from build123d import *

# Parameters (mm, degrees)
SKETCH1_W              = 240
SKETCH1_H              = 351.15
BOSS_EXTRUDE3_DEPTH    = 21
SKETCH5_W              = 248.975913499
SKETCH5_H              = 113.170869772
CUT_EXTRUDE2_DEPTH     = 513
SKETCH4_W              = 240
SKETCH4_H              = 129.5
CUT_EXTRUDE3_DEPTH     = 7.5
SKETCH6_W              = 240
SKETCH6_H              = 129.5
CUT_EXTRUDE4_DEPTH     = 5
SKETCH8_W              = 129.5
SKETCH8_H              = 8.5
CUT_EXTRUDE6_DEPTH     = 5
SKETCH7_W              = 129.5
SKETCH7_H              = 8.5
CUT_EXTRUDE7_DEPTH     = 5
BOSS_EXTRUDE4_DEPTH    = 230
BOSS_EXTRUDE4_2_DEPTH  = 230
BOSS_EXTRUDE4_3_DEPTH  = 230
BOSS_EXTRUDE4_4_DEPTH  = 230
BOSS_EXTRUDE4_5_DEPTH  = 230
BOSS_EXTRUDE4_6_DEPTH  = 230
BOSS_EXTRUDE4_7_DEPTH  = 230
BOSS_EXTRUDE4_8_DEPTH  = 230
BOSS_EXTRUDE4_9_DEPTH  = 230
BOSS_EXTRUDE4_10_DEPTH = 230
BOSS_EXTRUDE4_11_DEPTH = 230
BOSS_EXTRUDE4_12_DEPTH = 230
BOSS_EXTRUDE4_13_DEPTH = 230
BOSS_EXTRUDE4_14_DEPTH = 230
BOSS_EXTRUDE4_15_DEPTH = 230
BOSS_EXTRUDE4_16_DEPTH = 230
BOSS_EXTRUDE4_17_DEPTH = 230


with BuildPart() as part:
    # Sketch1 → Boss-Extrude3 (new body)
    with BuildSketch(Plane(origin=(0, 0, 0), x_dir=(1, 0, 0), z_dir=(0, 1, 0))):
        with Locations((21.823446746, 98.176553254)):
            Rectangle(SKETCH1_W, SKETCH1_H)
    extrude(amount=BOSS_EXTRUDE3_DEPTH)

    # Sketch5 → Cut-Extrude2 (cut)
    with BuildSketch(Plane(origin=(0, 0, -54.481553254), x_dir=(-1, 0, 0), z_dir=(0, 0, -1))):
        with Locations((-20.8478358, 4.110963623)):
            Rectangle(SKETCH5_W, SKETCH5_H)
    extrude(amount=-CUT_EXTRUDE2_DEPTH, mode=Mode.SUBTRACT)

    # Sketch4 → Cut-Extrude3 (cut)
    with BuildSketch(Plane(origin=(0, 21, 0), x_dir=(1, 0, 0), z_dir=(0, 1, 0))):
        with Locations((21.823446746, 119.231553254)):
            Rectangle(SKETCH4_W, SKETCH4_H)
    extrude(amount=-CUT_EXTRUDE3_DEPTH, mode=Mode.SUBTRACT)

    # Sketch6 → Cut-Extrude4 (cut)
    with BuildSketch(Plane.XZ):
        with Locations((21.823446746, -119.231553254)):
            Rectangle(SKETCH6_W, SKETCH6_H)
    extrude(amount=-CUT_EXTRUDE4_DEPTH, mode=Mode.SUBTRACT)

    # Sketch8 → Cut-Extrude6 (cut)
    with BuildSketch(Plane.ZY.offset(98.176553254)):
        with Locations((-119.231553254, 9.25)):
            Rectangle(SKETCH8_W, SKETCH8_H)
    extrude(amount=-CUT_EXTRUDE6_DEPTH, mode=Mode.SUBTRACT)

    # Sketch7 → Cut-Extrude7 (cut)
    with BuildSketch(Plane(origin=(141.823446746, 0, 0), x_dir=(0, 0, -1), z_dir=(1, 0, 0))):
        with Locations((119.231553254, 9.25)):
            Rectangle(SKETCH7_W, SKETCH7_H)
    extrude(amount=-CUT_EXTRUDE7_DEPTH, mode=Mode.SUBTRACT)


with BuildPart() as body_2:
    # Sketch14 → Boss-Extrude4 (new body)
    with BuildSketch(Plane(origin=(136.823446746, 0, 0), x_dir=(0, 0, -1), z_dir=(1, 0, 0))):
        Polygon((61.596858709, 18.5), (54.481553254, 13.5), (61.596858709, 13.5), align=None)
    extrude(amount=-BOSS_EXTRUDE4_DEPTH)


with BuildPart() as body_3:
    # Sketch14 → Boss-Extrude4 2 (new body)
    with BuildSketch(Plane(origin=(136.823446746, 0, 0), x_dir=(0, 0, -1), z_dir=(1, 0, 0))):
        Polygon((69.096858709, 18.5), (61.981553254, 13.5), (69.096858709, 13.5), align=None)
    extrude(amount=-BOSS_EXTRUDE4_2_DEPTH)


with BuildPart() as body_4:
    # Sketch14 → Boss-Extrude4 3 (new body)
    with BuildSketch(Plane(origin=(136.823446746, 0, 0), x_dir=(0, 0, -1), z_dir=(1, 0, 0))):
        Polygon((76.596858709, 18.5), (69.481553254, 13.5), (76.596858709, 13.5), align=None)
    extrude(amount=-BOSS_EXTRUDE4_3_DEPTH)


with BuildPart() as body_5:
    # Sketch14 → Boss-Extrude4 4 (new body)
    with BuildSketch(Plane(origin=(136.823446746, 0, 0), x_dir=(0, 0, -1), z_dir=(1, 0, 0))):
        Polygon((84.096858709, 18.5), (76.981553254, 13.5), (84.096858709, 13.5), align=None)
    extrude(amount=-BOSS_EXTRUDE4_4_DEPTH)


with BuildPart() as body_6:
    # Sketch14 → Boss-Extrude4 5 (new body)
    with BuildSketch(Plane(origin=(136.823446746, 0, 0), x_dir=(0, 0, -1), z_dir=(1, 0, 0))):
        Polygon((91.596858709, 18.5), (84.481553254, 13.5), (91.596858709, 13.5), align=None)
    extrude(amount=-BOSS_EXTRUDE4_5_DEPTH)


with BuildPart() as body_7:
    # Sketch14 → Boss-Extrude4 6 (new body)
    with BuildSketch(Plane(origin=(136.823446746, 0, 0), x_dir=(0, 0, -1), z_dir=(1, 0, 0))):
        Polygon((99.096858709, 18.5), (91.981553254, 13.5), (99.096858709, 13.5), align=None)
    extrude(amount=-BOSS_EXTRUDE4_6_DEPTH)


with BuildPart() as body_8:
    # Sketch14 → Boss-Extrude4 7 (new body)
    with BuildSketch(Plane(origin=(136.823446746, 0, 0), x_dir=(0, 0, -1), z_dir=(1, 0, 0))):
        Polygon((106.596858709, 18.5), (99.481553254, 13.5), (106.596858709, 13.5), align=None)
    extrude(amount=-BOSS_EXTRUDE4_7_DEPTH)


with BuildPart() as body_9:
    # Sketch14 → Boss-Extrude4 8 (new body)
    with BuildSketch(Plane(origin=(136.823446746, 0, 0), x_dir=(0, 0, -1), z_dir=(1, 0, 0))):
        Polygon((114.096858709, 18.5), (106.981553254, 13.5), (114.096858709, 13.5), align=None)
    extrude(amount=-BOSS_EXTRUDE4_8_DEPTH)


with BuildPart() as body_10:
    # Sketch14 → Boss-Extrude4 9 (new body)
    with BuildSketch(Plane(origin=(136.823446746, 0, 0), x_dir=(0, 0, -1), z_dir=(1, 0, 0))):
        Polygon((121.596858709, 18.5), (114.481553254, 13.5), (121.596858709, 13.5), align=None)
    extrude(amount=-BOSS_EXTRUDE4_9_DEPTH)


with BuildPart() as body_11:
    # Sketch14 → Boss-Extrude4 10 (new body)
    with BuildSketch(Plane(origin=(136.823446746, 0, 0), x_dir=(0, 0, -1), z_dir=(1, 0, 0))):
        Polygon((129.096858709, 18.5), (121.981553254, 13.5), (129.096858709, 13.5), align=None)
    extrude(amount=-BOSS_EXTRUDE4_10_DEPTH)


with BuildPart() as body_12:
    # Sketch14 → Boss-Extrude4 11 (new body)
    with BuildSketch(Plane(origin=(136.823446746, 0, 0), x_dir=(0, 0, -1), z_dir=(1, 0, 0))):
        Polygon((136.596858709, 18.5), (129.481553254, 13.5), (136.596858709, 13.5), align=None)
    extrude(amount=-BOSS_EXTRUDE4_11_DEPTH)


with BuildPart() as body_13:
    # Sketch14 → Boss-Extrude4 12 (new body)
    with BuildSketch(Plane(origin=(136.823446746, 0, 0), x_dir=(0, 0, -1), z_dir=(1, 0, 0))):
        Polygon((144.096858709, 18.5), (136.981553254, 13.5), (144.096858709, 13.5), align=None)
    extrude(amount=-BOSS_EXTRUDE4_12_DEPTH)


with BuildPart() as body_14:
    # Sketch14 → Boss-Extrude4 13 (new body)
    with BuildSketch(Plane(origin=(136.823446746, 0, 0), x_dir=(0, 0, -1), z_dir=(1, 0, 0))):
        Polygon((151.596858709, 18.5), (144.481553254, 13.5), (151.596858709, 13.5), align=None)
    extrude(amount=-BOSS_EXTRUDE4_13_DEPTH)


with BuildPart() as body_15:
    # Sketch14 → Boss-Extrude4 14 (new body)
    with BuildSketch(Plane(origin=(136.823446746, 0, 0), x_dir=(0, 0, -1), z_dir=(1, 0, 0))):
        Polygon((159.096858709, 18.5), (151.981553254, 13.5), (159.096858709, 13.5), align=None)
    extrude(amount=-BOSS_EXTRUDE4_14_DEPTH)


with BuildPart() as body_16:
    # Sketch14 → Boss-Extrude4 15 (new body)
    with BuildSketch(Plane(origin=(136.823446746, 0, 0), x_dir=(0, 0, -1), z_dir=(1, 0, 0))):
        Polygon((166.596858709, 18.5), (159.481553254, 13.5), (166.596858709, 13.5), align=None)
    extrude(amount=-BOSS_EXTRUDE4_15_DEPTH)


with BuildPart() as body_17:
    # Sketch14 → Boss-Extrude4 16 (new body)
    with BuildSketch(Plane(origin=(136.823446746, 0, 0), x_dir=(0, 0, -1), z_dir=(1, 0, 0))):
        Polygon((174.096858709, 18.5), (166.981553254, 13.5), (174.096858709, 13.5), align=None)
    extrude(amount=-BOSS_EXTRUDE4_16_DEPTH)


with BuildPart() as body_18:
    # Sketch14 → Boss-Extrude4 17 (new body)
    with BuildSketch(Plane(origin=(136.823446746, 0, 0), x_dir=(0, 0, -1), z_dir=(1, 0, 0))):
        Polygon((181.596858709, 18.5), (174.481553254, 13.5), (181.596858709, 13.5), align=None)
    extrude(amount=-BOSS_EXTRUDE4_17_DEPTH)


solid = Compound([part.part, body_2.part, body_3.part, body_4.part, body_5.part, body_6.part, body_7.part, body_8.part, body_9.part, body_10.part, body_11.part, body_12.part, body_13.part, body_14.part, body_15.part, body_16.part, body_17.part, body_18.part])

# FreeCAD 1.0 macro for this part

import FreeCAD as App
import Part
import Sketcher

V = App.Vector
Q = App.Units.Quantity

doc = App.newDocument("Part")
params = doc.addObject("Spreadsheet::Sheet", "Params")
for row, (alias, value) in enumerate([
    ("sketch1_width", "240 mm"),
    ("sketch1_height", "351.15 mm"),
    ("pad1_length", "21 mm"),
    ("pocket1_length", "513 mm"),
    ("sketch3_width", "240 mm"),
    ("sketch3_height", "129.5 mm"),
    ("pocket2_length", "7.5 mm"),
    ("sketch4_width", "240 mm"),
    ("sketch4_height", "129.5 mm"),
    ("pocket3_length", "5 mm"),
    ("sketch5_width", "8.5 mm"),
    ("sketch5_height", "129.5 mm"),
    ("pocket4_length", "5 mm"),
    ("sketch6_width", "8.5 mm"),
    ("sketch6_height", "129.5 mm"),
    ("pocket5_length", "5 mm"),
    ("sketch7_width", "5 mm"),
    ("pad2_length", "230 mm"),
    ("sketch8_width", "5 mm"),
    ("pad3_length", "230 mm"),
    ("sketch9_width", "5 mm"),
    ("pad4_length", "230 mm"),
    ("sketch10_width", "5 mm"),
    ("pad5_length", "230 mm"),
    ("sketch11_width", "5 mm"),
    ("pad6_length", "230 mm"),
    ("sketch12_width", "5 mm"),
    ("pad7_length", "230 mm"),
    ("sketch13_width", "5 mm"),
    ("pad8_length", "230 mm"),
    ("sketch14_width", "5 mm"),
    ("pad9_length", "230 mm"),
    ("sketch15_width", "5 mm"),
    ("pad10_length", "230 mm"),
    ("sketch16_width", "5 mm"),
    ("pad11_length", "230 mm"),
    ("sketch17_width", "5 mm"),
    ("pad12_length", "230 mm"),
    ("sketch18_width", "5 mm"),
    ("pad13_length", "230 mm"),
    ("sketch19_width", "5 mm"),
    ("pad14_length", "230 mm"),
    ("sketch20_width", "5 mm"),
    ("pad15_length", "230 mm"),
    ("sketch21_width", "5 mm"),
    ("pad16_length", "230 mm"),
    ("sketch22_width", "5 mm"),
    ("pad17_length", "230 mm"),
    ("sketch23_width", "5 mm"),
    ("pad18_length", "230 mm"),
], start=1):
    params.set(f"A{row}", alias)
    params.set(f"B{row}", "=" + value)
    params.setAlias(f"B{row}", alias)

body = doc.addObject("PartDesign::Body", "Body")

sketch1 = body.newObject("Sketcher::SketchObject", "Sketch")
sketch1.AttachmentSupport = (doc.getObject("XZ_Plane"), [""])
sketch1.MapMode = "FlatFace"
sketch1.addGeometry([
    Part.LineSegment(V(-98.176553, -273.751553, 0), V(-98.176553, 77.398447, 0)),
    Part.LineSegment(V(-98.176553, 77.398447, 0), V(141.823447, 77.398447, 0)),
    Part.LineSegment(V(141.823447, 77.398447, 0), V(141.823447, -273.751553, 0)),
    Part.LineSegment(V(141.823447, -273.751553, 0), V(-98.176553, -273.751553, 0)),
], False)
sketch1.addConstraint([
    Sketcher.Constraint("Coincident", 0, 2, 1, 1),
    Sketcher.Constraint("Coincident", 1, 2, 2, 1),
    Sketcher.Constraint("Coincident", 2, 2, 3, 1),
    Sketcher.Constraint("Coincident", 3, 2, 0, 1),
    Sketcher.Constraint("Vertical", 0),
    Sketcher.Constraint("Horizontal", 1),
    Sketcher.Constraint("Vertical", 2),
    Sketcher.Constraint("Horizontal", 3),
    Sketcher.Constraint("DistanceX", 1, 1, 1, 2, Q("240 mm")),
    Sketcher.Constraint("DistanceY", 0, 1, 0, 2, Q("351.15 mm")),
    Sketcher.Constraint("DistanceX", 0, 2, -1, 1, Q("98.176553 mm")),
    Sketcher.Constraint("DistanceY", -1, 1, 0, 2, Q("77.398447 mm")),
])
sketch1.setExpression("Constraints[8]", "Params.sketch1_width")
sketch1.setExpression("Constraints[9]", "Params.sketch1_height")
pad1 = body.newObject("PartDesign::Pad", "Pad")
pad1.Profile = sketch1
pad1.setExpression("Length", "Params.pad1_length")
pad1.Reversed = True

sketch2 = body.newObject("Sketcher::SketchObject", "Sketch001")
sketch2.AttachmentSupport = (doc.getObject("XY_Plane"), [""])
sketch2.MapMode = "FlatFace"
sketch2.AttachmentOffset = App.Placement(V(0, 0, -54.481553), App.Rotation())
sketch2.addGeometry([
    Part.LineSegment(V(145.335793, 60.696399, 0), V(145.335793, -52.474471, 0)),
    Part.LineSegment(V(145.335793, -52.474471, 0), V(-103.640121, -52.474471, 0)),
    Part.LineSegment(V(-103.640121, -52.474471, 0), V(-103.640121, 60.696399, 0)),
    Part.LineSegment(V(-103.640121, 60.696399, 0), V(145.335793, 60.696399, 0)),
], False)
sketch2.addConstraint([
    Sketcher.Constraint("Coincident", 0, 2, 1, 1),
    Sketcher.Constraint("Coincident", 1, 2, 2, 1),
    Sketcher.Constraint("Coincident", 2, 2, 3, 1),
    Sketcher.Constraint("Coincident", 3, 2, 0, 1),
    Sketcher.Constraint("Vertical", 0),
    Sketcher.Constraint("Horizontal", 1),
    Sketcher.Constraint("Vertical", 2),
    Sketcher.Constraint("Horizontal", 3),
    Sketcher.Constraint("DistanceY", 0, 2, 0, 1, Q("113.17087 mm")),
    Sketcher.Constraint("DistanceY", -1, 1, 2, 2, Q("60.696399 mm")),
    Sketcher.Constraint("DistanceX", 1, 2, 1, 1, Q("248.975913 mm")),
    Sketcher.Constraint("DistanceX", 1, 2, -1, 1, Q("103.640121 mm")),
])
pocket1 = body.newObject("PartDesign::Pocket", "Pocket")
pocket1.Profile = sketch2
pocket1.setExpression("Length", "Params.pocket1_length")
pocket1.Reversed = True

sketch3 = body.newObject("Sketcher::SketchObject", "Sketch002")
sketch3.AttachmentSupport = (doc.getObject("XZ_Plane"), [""])
sketch3.MapMode = "FlatFace"
sketch3.AttachmentOffset = App.Placement(V(0, 0, -21), App.Rotation())
sketch3.addGeometry([
    Part.LineSegment(V(-98.176553, -183.981553, 0), V(-98.176553, -54.481553, 0)),
    Part.LineSegment(V(-98.176553, -54.481553, 0), V(141.823447, -54.481553, 0)),
    Part.LineSegment(V(141.823447, -54.481553, 0), V(141.823447, -183.981553, 0)),
    Part.LineSegment(V(141.823447, -183.981553, 0), V(-98.176553, -183.981553, 0)),
], False)
sketch3.addConstraint([
    Sketcher.Constraint("Coincident", 0, 2, 1, 1),
    Sketcher.Constraint("Coincident", 1, 2, 2, 1),
    Sketcher.Constraint("Coincident", 2, 2, 3, 1),
    Sketcher.Constraint("Coincident", 3, 2, 0, 1),
    Sketcher.Constraint("Vertical", 0),
    Sketcher.Constraint("Horizontal", 1),
    Sketcher.Constraint("Vertical", 2),
    Sketcher.Constraint("Horizontal", 3),
    Sketcher.Constraint("DistanceX", 1, 1, 1, 2, Q("240 mm")),
    Sketcher.Constraint("DistanceY", 0, 1, 0, 2, Q("129.5 mm")),
    Sketcher.Constraint("DistanceX", 0, 2, -1, 1, Q("98.176553 mm")),
    Sketcher.Constraint("DistanceY", 0, 2, -1, 1, Q("54.481553 mm")),
])
sketch3.setExpression("Constraints[8]", "Params.sketch3_width")
sketch3.setExpression("Constraints[9]", "Params.sketch3_height")
pocket2 = body.newObject("PartDesign::Pocket", "Pocket001")
pocket2.Profile = sketch3
pocket2.setExpression("Length", "Params.pocket2_length")
pocket2.Reversed = True

sketch4 = body.newObject("Sketcher::SketchObject", "Sketch003")
sketch4.AttachmentSupport = (doc.getObject("XZ_Plane"), [""])
sketch4.MapMode = "FlatFace"
sketch4.addGeometry([
    Part.LineSegment(V(-98.176553, -54.481553, 0), V(-98.176553, -183.981553, 0)),
    Part.LineSegment(V(-98.176553, -183.981553, 0), V(141.823447, -183.981553, 0)),
    Part.LineSegment(V(141.823447, -183.981553, 0), V(141.823447, -54.481553, 0)),
    Part.LineSegment(V(141.823447, -54.481553, 0), V(-98.176553, -54.481553, 0)),
], False)
sketch4.addConstraint([
    Sketcher.Constraint("Coincident", 0, 2, 1, 1),
    Sketcher.Constraint("Coincident", 1, 2, 2, 1),
    Sketcher.Constraint("Coincident", 2, 2, 3, 1),
    Sketcher.Constraint("Coincident", 3, 2, 0, 1),
    Sketcher.Constraint("Vertical", 0),
    Sketcher.Constraint("Horizontal", 1),
    Sketcher.Constraint("Vertical", 2),
    Sketcher.Constraint("Horizontal", 3),
    Sketcher.Constraint("DistanceX", 1, 1, 1, 2, Q("240 mm")),
    Sketcher.Constraint("DistanceY", 0, 2, 0, 1, Q("129.5 mm")),
    Sketcher.Constraint("DistanceX", 0, 2, -1, 1, Q("98.176553 mm")),
    Sketcher.Constraint("DistanceY", 0, 2, -1, 1, Q("183.981553 mm")),
])
sketch4.setExpression("Constraints[8]", "Params.sketch4_width")
sketch4.setExpression("Constraints[9]", "Params.sketch4_height")
pocket3 = body.newObject("PartDesign::Pocket", "Pocket002")
pocket3.Profile = sketch4
pocket3.setExpression("Length", "Params.pocket3_length")

sketch5 = body.newObject("Sketcher::SketchObject", "Sketch004")
sketch5.AttachmentSupport = (doc.getObject("YZ_Plane"), [""])
sketch5.MapMode = "FlatFace"
sketch5.AttachmentOffset = App.Placement(V(0, 0, -98.176553), App.Rotation())
sketch5.addGeometry([
    Part.LineSegment(V(13.5, -183.981553, 0), V(5, -183.981553, 0)),
    Part.LineSegment(V(5, -183.981553, 0), V(5, -54.481553, 0)),
    Part.LineSegment(V(5, -54.481553, 0), V(13.5, -54.481553, 0)),
    Part.LineSegment(V(13.5, -54.481553, 0), V(13.5, -183.981553, 0)),
], False)
sketch5.addConstraint([
    Sketcher.Constraint("Coincident", 0, 2, 1, 1),
    Sketcher.Constraint("Coincident", 1, 2, 2, 1),
    Sketcher.Constraint("Coincident", 2, 2, 3, 1),
    Sketcher.Constraint("Coincident", 3, 2, 0, 1),
    Sketcher.Constraint("Horizontal", 0),
    Sketcher.Constraint("Vertical", 1),
    Sketcher.Constraint("Horizontal", 2),
    Sketcher.Constraint("Vertical", 3),
    Sketcher.Constraint("DistanceX", 0, 2, 0, 1, Q("8.5 mm")),
    Sketcher.Constraint("DistanceY", 1, 1, 1, 2, Q("129.5 mm")),
    Sketcher.Constraint("DistanceX", -1, 1, 0, 2, Q("5 mm")),
    Sketcher.Constraint("DistanceY", 0, 2, -1, 1, Q("183.981553 mm")),
])
sketch5.setExpression("Constraints[8]", "Params.sketch5_width")
sketch5.setExpression("Constraints[9]", "Params.sketch5_height")
pocket4 = body.newObject("PartDesign::Pocket", "Pocket003")
pocket4.Profile = sketch5
pocket4.setExpression("Length", "Params.pocket4_length")
pocket4.Reversed = True

sketch6 = body.newObject("Sketcher::SketchObject", "Sketch005")
sketch6.AttachmentSupport = (doc.getObject("YZ_Plane"), [""])
sketch6.MapMode = "FlatFace"
sketch6.AttachmentOffset = App.Placement(V(0, 0, 141.823447), App.Rotation())
sketch6.addGeometry([
    Part.LineSegment(V(13.5, -54.481553, 0), V(5, -54.481553, 0)),
    Part.LineSegment(V(5, -54.481553, 0), V(5, -183.981553, 0)),
    Part.LineSegment(V(5, -183.981553, 0), V(13.5, -183.981553, 0)),
    Part.LineSegment(V(13.5, -183.981553, 0), V(13.5, -54.481553, 0)),
], False)
sketch6.addConstraint([
    Sketcher.Constraint("Coincident", 0, 2, 1, 1),
    Sketcher.Constraint("Coincident", 1, 2, 2, 1),
    Sketcher.Constraint("Coincident", 2, 2, 3, 1),
    Sketcher.Constraint("Coincident", 3, 2, 0, 1),
    Sketcher.Constraint("Horizontal", 0),
    Sketcher.Constraint("Vertical", 1),
    Sketcher.Constraint("Horizontal", 2),
    Sketcher.Constraint("Vertical", 3),
    Sketcher.Constraint("DistanceX", 0, 2, 0, 1, Q("8.5 mm")),
    Sketcher.Constraint("DistanceY", 1, 2, 1, 1, Q("129.5 mm")),
    Sketcher.Constraint("DistanceX", -1, 1, 0, 2, Q("5 mm")),
    Sketcher.Constraint("DistanceY", 0, 2, -1, 1, Q("54.481553 mm")),
])
sketch6.setExpression("Constraints[8]", "Params.sketch6_width")
sketch6.setExpression("Constraints[9]", "Params.sketch6_height")
pocket5 = body.newObject("PartDesign::Pocket", "Pocket004")
pocket5.Profile = sketch6
pocket5.setExpression("Length", "Params.pocket5_length")
body2 = doc.addObject("PartDesign::Body", "Body001")

sketch7 = body2.newObject("Sketcher::SketchObject", "Sketch006")
sketch7.AttachmentSupport = (doc.getObject("YZ_Plane001"), [""])
sketch7.MapMode = "FlatFace"
sketch7.AttachmentOffset = App.Placement(V(0, 0, 136.823447), App.Rotation())
sketch7.addGeometry([
    Part.LineSegment(V(18.5, -61.596859, 0), V(13.5, -54.481553, 0)),
    Part.LineSegment(V(13.5, -54.481553, 0), V(13.5, -61.596859, 0)),
    Part.LineSegment(V(13.5, -61.596859, 0), V(18.5, -61.596859, 0)),
], False)
sketch7.addConstraint([
    Sketcher.Constraint("Coincident", 0, 2, 1, 1),
    Sketcher.Constraint("Coincident", 1, 2, 2, 1),
    Sketcher.Constraint("Coincident", 2, 2, 0, 1),
    Sketcher.Constraint("Vertical", 1),
    Sketcher.Constraint("Horizontal", 2),
    Sketcher.Constraint("DistanceX", 2, 1, 2, 2, Q("5 mm")),
    Sketcher.Constraint("DistanceX", -1, 1, 0, 2, Q("13.5 mm")),
    Sketcher.Constraint("Distance", 0, Q("8.696411 mm")),
    Sketcher.Constraint("DistanceY", 1, 2, -1, 1, Q("61.596859 mm")),
])
sketch7.setExpression("Constraints[5]", "Params.sketch7_width")
pad2 = body2.newObject("PartDesign::Pad", "Pad001")
pad2.Profile = sketch7
pad2.setExpression("Length", "Params.pad2_length")
pad2.Reversed = True
body3 = doc.addObject("PartDesign::Body", "Body002")

sketch8 = body3.newObject("Sketcher::SketchObject", "Sketch007")
sketch8.AttachmentSupport = (doc.getObject("YZ_Plane002"), [""])
sketch8.MapMode = "FlatFace"
sketch8.AttachmentOffset = App.Placement(V(0, 0, 136.823447), App.Rotation())
sketch8.addGeometry([
    Part.LineSegment(V(18.5, -69.096859, 0), V(13.5, -61.981553, 0)),
    Part.LineSegment(V(13.5, -61.981553, 0), V(13.5, -69.096859, 0)),
    Part.LineSegment(V(13.5, -69.096859, 0), V(18.5, -69.096859, 0)),
], False)
sketch8.addConstraint([
    Sketcher.Constraint("Coincident", 0, 2, 1, 1),
    Sketcher.Constraint("Coincident", 1, 2, 2, 1),
    Sketcher.Constraint("Coincident", 2, 2, 0, 1),
    Sketcher.Constraint("Vertical", 1),
    Sketcher.Constraint("Horizontal", 2),
    Sketcher.Constraint("DistanceX", 2, 1, 2, 2, Q("5 mm")),
    Sketcher.Constraint("DistanceX", -1, 1, 0, 2, Q("13.5 mm")),
    Sketcher.Constraint("Distance", 0, Q("8.696411 mm")),
    Sketcher.Constraint("DistanceY", 1, 2, -1, 1, Q("69.096859 mm")),
])
sketch8.setExpression("Constraints[5]", "Params.sketch8_width")
pad3 = body3.newObject("PartDesign::Pad", "Pad002")
pad3.Profile = sketch8
pad3.setExpression("Length", "Params.pad3_length")
pad3.Reversed = True
body4 = doc.addObject("PartDesign::Body", "Body003")

sketch9 = body4.newObject("Sketcher::SketchObject", "Sketch008")
sketch9.AttachmentSupport = (doc.getObject("YZ_Plane003"), [""])
sketch9.MapMode = "FlatFace"
sketch9.AttachmentOffset = App.Placement(V(0, 0, 136.823447), App.Rotation())
sketch9.addGeometry([
    Part.LineSegment(V(18.5, -76.596859, 0), V(13.5, -69.481553, 0)),
    Part.LineSegment(V(13.5, -69.481553, 0), V(13.5, -76.596859, 0)),
    Part.LineSegment(V(13.5, -76.596859, 0), V(18.5, -76.596859, 0)),
], False)
sketch9.addConstraint([
    Sketcher.Constraint("Coincident", 0, 2, 1, 1),
    Sketcher.Constraint("Coincident", 1, 2, 2, 1),
    Sketcher.Constraint("Coincident", 2, 2, 0, 1),
    Sketcher.Constraint("Vertical", 1),
    Sketcher.Constraint("Horizontal", 2),
    Sketcher.Constraint("DistanceX", 2, 1, 2, 2, Q("5 mm")),
    Sketcher.Constraint("DistanceX", -1, 1, 0, 2, Q("13.5 mm")),
    Sketcher.Constraint("Distance", 0, Q("8.696411 mm")),
    Sketcher.Constraint("DistanceY", 1, 2, -1, 1, Q("76.596859 mm")),
])
sketch9.setExpression("Constraints[5]", "Params.sketch9_width")
pad4 = body4.newObject("PartDesign::Pad", "Pad003")
pad4.Profile = sketch9
pad4.setExpression("Length", "Params.pad4_length")
pad4.Reversed = True
body5 = doc.addObject("PartDesign::Body", "Body004")

sketch10 = body5.newObject("Sketcher::SketchObject", "Sketch009")
sketch10.AttachmentSupport = (doc.getObject("YZ_Plane004"), [""])
sketch10.MapMode = "FlatFace"
sketch10.AttachmentOffset = App.Placement(V(0, 0, 136.823447), App.Rotation())
sketch10.addGeometry([
    Part.LineSegment(V(18.5, -84.096859, 0), V(13.5, -76.981553, 0)),
    Part.LineSegment(V(13.5, -76.981553, 0), V(13.5, -84.096859, 0)),
    Part.LineSegment(V(13.5, -84.096859, 0), V(18.5, -84.096859, 0)),
], False)
sketch10.addConstraint([
    Sketcher.Constraint("Coincident", 0, 2, 1, 1),
    Sketcher.Constraint("Coincident", 1, 2, 2, 1),
    Sketcher.Constraint("Coincident", 2, 2, 0, 1),
    Sketcher.Constraint("Vertical", 1),
    Sketcher.Constraint("Horizontal", 2),
    Sketcher.Constraint("DistanceX", 2, 1, 2, 2, Q("5 mm")),
    Sketcher.Constraint("DistanceX", -1, 1, 0, 2, Q("13.5 mm")),
    Sketcher.Constraint("Distance", 0, Q("8.696411 mm")),
    Sketcher.Constraint("DistanceY", 1, 2, -1, 1, Q("84.096859 mm")),
])
sketch10.setExpression("Constraints[5]", "Params.sketch10_width")
pad5 = body5.newObject("PartDesign::Pad", "Pad004")
pad5.Profile = sketch10
pad5.setExpression("Length", "Params.pad5_length")
pad5.Reversed = True
body6 = doc.addObject("PartDesign::Body", "Body005")

sketch11 = body6.newObject("Sketcher::SketchObject", "Sketch010")
sketch11.AttachmentSupport = (doc.getObject("YZ_Plane005"), [""])
sketch11.MapMode = "FlatFace"
sketch11.AttachmentOffset = App.Placement(V(0, 0, 136.823447), App.Rotation())
sketch11.addGeometry([
    Part.LineSegment(V(18.5, -91.596859, 0), V(13.5, -84.481553, 0)),
    Part.LineSegment(V(13.5, -84.481553, 0), V(13.5, -91.596859, 0)),
    Part.LineSegment(V(13.5, -91.596859, 0), V(18.5, -91.596859, 0)),
], False)
sketch11.addConstraint([
    Sketcher.Constraint("Coincident", 0, 2, 1, 1),
    Sketcher.Constraint("Coincident", 1, 2, 2, 1),
    Sketcher.Constraint("Coincident", 2, 2, 0, 1),
    Sketcher.Constraint("Vertical", 1),
    Sketcher.Constraint("Horizontal", 2),
    Sketcher.Constraint("DistanceX", 2, 1, 2, 2, Q("5 mm")),
    Sketcher.Constraint("DistanceX", -1, 1, 0, 2, Q("13.5 mm")),
    Sketcher.Constraint("Distance", 0, Q("8.696411 mm")),
    Sketcher.Constraint("DistanceY", 1, 2, -1, 1, Q("91.596859 mm")),
])
sketch11.setExpression("Constraints[5]", "Params.sketch11_width")
pad6 = body6.newObject("PartDesign::Pad", "Pad005")
pad6.Profile = sketch11
pad6.setExpression("Length", "Params.pad6_length")
pad6.Reversed = True
body7 = doc.addObject("PartDesign::Body", "Body006")

sketch12 = body7.newObject("Sketcher::SketchObject", "Sketch011")
sketch12.AttachmentSupport = (doc.getObject("YZ_Plane006"), [""])
sketch12.MapMode = "FlatFace"
sketch12.AttachmentOffset = App.Placement(V(0, 0, 136.823447), App.Rotation())
sketch12.addGeometry([
    Part.LineSegment(V(18.5, -99.096859, 0), V(13.5, -91.981553, 0)),
    Part.LineSegment(V(13.5, -91.981553, 0), V(13.5, -99.096859, 0)),
    Part.LineSegment(V(13.5, -99.096859, 0), V(18.5, -99.096859, 0)),
], False)
sketch12.addConstraint([
    Sketcher.Constraint("Coincident", 0, 2, 1, 1),
    Sketcher.Constraint("Coincident", 1, 2, 2, 1),
    Sketcher.Constraint("Coincident", 2, 2, 0, 1),
    Sketcher.Constraint("Vertical", 1),
    Sketcher.Constraint("Horizontal", 2),
    Sketcher.Constraint("DistanceX", 2, 1, 2, 2, Q("5 mm")),
    Sketcher.Constraint("DistanceX", -1, 1, 0, 2, Q("13.5 mm")),
    Sketcher.Constraint("Distance", 0, Q("8.696411 mm")),
    Sketcher.Constraint("DistanceY", 1, 2, -1, 1, Q("99.096859 mm")),
])
sketch12.setExpression("Constraints[5]", "Params.sketch12_width")
pad7 = body7.newObject("PartDesign::Pad", "Pad006")
pad7.Profile = sketch12
pad7.setExpression("Length", "Params.pad7_length")
pad7.Reversed = True
body8 = doc.addObject("PartDesign::Body", "Body007")

sketch13 = body8.newObject("Sketcher::SketchObject", "Sketch012")
sketch13.AttachmentSupport = (doc.getObject("YZ_Plane007"), [""])
sketch13.MapMode = "FlatFace"
sketch13.AttachmentOffset = App.Placement(V(0, 0, 136.823447), App.Rotation())
sketch13.addGeometry([
    Part.LineSegment(V(18.5, -106.596859, 0), V(13.5, -99.481553, 0)),
    Part.LineSegment(V(13.5, -99.481553, 0), V(13.5, -106.596859, 0)),
    Part.LineSegment(V(13.5, -106.596859, 0), V(18.5, -106.596859, 0)),
], False)
sketch13.addConstraint([
    Sketcher.Constraint("Coincident", 0, 2, 1, 1),
    Sketcher.Constraint("Coincident", 1, 2, 2, 1),
    Sketcher.Constraint("Coincident", 2, 2, 0, 1),
    Sketcher.Constraint("Vertical", 1),
    Sketcher.Constraint("Horizontal", 2),
    Sketcher.Constraint("DistanceX", 2, 1, 2, 2, Q("5 mm")),
    Sketcher.Constraint("DistanceX", -1, 1, 0, 2, Q("13.5 mm")),
    Sketcher.Constraint("Distance", 0, Q("8.696411 mm")),
    Sketcher.Constraint("DistanceY", 1, 2, -1, 1, Q("106.596859 mm")),
])
sketch13.setExpression("Constraints[5]", "Params.sketch13_width")
pad8 = body8.newObject("PartDesign::Pad", "Pad007")
pad8.Profile = sketch13
pad8.setExpression("Length", "Params.pad8_length")
pad8.Reversed = True
body9 = doc.addObject("PartDesign::Body", "Body008")

sketch14 = body9.newObject("Sketcher::SketchObject", "Sketch013")
sketch14.AttachmentSupport = (doc.getObject("YZ_Plane008"), [""])
sketch14.MapMode = "FlatFace"
sketch14.AttachmentOffset = App.Placement(V(0, 0, 136.823447), App.Rotation())
sketch14.addGeometry([
    Part.LineSegment(V(18.5, -114.096859, 0), V(13.5, -106.981553, 0)),
    Part.LineSegment(V(13.5, -106.981553, 0), V(13.5, -114.096859, 0)),
    Part.LineSegment(V(13.5, -114.096859, 0), V(18.5, -114.096859, 0)),
], False)
sketch14.addConstraint([
    Sketcher.Constraint("Coincident", 0, 2, 1, 1),
    Sketcher.Constraint("Coincident", 1, 2, 2, 1),
    Sketcher.Constraint("Coincident", 2, 2, 0, 1),
    Sketcher.Constraint("Vertical", 1),
    Sketcher.Constraint("Horizontal", 2),
    Sketcher.Constraint("DistanceX", 2, 1, 2, 2, Q("5 mm")),
    Sketcher.Constraint("DistanceX", -1, 1, 0, 2, Q("13.5 mm")),
    Sketcher.Constraint("Distance", 0, Q("8.696411 mm")),
    Sketcher.Constraint("DistanceY", 1, 2, -1, 1, Q("114.096859 mm")),
])
sketch14.setExpression("Constraints[5]", "Params.sketch14_width")
pad9 = body9.newObject("PartDesign::Pad", "Pad008")
pad9.Profile = sketch14
pad9.setExpression("Length", "Params.pad9_length")
pad9.Reversed = True
body10 = doc.addObject("PartDesign::Body", "Body009")

sketch15 = body10.newObject("Sketcher::SketchObject", "Sketch014")
sketch15.AttachmentSupport = (doc.getObject("YZ_Plane009"), [""])
sketch15.MapMode = "FlatFace"
sketch15.AttachmentOffset = App.Placement(V(0, 0, 136.823447), App.Rotation())
sketch15.addGeometry([
    Part.LineSegment(V(18.5, -121.596859, 0), V(13.5, -114.481553, 0)),
    Part.LineSegment(V(13.5, -114.481553, 0), V(13.5, -121.596859, 0)),
    Part.LineSegment(V(13.5, -121.596859, 0), V(18.5, -121.596859, 0)),
], False)
sketch15.addConstraint([
    Sketcher.Constraint("Coincident", 0, 2, 1, 1),
    Sketcher.Constraint("Coincident", 1, 2, 2, 1),
    Sketcher.Constraint("Coincident", 2, 2, 0, 1),
    Sketcher.Constraint("Vertical", 1),
    Sketcher.Constraint("Horizontal", 2),
    Sketcher.Constraint("DistanceX", 2, 1, 2, 2, Q("5 mm")),
    Sketcher.Constraint("DistanceX", -1, 1, 0, 2, Q("13.5 mm")),
    Sketcher.Constraint("Distance", 0, Q("8.696411 mm")),
    Sketcher.Constraint("DistanceY", 1, 2, -1, 1, Q("121.596859 mm")),
])
sketch15.setExpression("Constraints[5]", "Params.sketch15_width")
pad10 = body10.newObject("PartDesign::Pad", "Pad009")
pad10.Profile = sketch15
pad10.setExpression("Length", "Params.pad10_length")
pad10.Reversed = True
body11 = doc.addObject("PartDesign::Body", "Body010")

sketch16 = body11.newObject("Sketcher::SketchObject", "Sketch015")
sketch16.AttachmentSupport = (doc.getObject("YZ_Plane010"), [""])
sketch16.MapMode = "FlatFace"
sketch16.AttachmentOffset = App.Placement(V(0, 0, 136.823447), App.Rotation())
sketch16.addGeometry([
    Part.LineSegment(V(18.5, -129.096859, 0), V(13.5, -121.981553, 0)),
    Part.LineSegment(V(13.5, -121.981553, 0), V(13.5, -129.096859, 0)),
    Part.LineSegment(V(13.5, -129.096859, 0), V(18.5, -129.096859, 0)),
], False)
sketch16.addConstraint([
    Sketcher.Constraint("Coincident", 0, 2, 1, 1),
    Sketcher.Constraint("Coincident", 1, 2, 2, 1),
    Sketcher.Constraint("Coincident", 2, 2, 0, 1),
    Sketcher.Constraint("Vertical", 1),
    Sketcher.Constraint("Horizontal", 2),
    Sketcher.Constraint("DistanceX", 2, 1, 2, 2, Q("5 mm")),
    Sketcher.Constraint("DistanceX", -1, 1, 0, 2, Q("13.5 mm")),
    Sketcher.Constraint("Distance", 0, Q("8.696411 mm")),
    Sketcher.Constraint("DistanceY", 1, 2, -1, 1, Q("129.096859 mm")),
])
sketch16.setExpression("Constraints[5]", "Params.sketch16_width")
pad11 = body11.newObject("PartDesign::Pad", "Pad010")
pad11.Profile = sketch16
pad11.setExpression("Length", "Params.pad11_length")
pad11.Reversed = True
body12 = doc.addObject("PartDesign::Body", "Body011")

sketch17 = body12.newObject("Sketcher::SketchObject", "Sketch016")
sketch17.AttachmentSupport = (doc.getObject("YZ_Plane011"), [""])
sketch17.MapMode = "FlatFace"
sketch17.AttachmentOffset = App.Placement(V(0, 0, 136.823447), App.Rotation())
sketch17.addGeometry([
    Part.LineSegment(V(18.5, -136.596859, 0), V(13.5, -129.481553, 0)),
    Part.LineSegment(V(13.5, -129.481553, 0), V(13.5, -136.596859, 0)),
    Part.LineSegment(V(13.5, -136.596859, 0), V(18.5, -136.596859, 0)),
], False)
sketch17.addConstraint([
    Sketcher.Constraint("Coincident", 0, 2, 1, 1),
    Sketcher.Constraint("Coincident", 1, 2, 2, 1),
    Sketcher.Constraint("Coincident", 2, 2, 0, 1),
    Sketcher.Constraint("Vertical", 1),
    Sketcher.Constraint("Horizontal", 2),
    Sketcher.Constraint("DistanceX", 2, 1, 2, 2, Q("5 mm")),
    Sketcher.Constraint("DistanceX", -1, 1, 0, 2, Q("13.5 mm")),
    Sketcher.Constraint("Distance", 0, Q("8.696411 mm")),
    Sketcher.Constraint("DistanceY", 1, 2, -1, 1, Q("136.596859 mm")),
])
sketch17.setExpression("Constraints[5]", "Params.sketch17_width")
pad12 = body12.newObject("PartDesign::Pad", "Pad011")
pad12.Profile = sketch17
pad12.setExpression("Length", "Params.pad12_length")
pad12.Reversed = True
body13 = doc.addObject("PartDesign::Body", "Body012")

sketch18 = body13.newObject("Sketcher::SketchObject", "Sketch017")
sketch18.AttachmentSupport = (doc.getObject("YZ_Plane012"), [""])
sketch18.MapMode = "FlatFace"
sketch18.AttachmentOffset = App.Placement(V(0, 0, 136.823447), App.Rotation())
sketch18.addGeometry([
    Part.LineSegment(V(18.5, -144.096859, 0), V(13.5, -136.981553, 0)),
    Part.LineSegment(V(13.5, -136.981553, 0), V(13.5, -144.096859, 0)),
    Part.LineSegment(V(13.5, -144.096859, 0), V(18.5, -144.096859, 0)),
], False)
sketch18.addConstraint([
    Sketcher.Constraint("Coincident", 0, 2, 1, 1),
    Sketcher.Constraint("Coincident", 1, 2, 2, 1),
    Sketcher.Constraint("Coincident", 2, 2, 0, 1),
    Sketcher.Constraint("Vertical", 1),
    Sketcher.Constraint("Horizontal", 2),
    Sketcher.Constraint("DistanceX", 2, 1, 2, 2, Q("5 mm")),
    Sketcher.Constraint("DistanceX", -1, 1, 0, 2, Q("13.5 mm")),
    Sketcher.Constraint("Distance", 0, Q("8.696411 mm")),
    Sketcher.Constraint("DistanceY", 1, 2, -1, 1, Q("144.096859 mm")),
])
sketch18.setExpression("Constraints[5]", "Params.sketch18_width")
pad13 = body13.newObject("PartDesign::Pad", "Pad012")
pad13.Profile = sketch18
pad13.setExpression("Length", "Params.pad13_length")
pad13.Reversed = True
body14 = doc.addObject("PartDesign::Body", "Body013")

sketch19 = body14.newObject("Sketcher::SketchObject", "Sketch018")
sketch19.AttachmentSupport = (doc.getObject("YZ_Plane013"), [""])
sketch19.MapMode = "FlatFace"
sketch19.AttachmentOffset = App.Placement(V(0, 0, 136.823447), App.Rotation())
sketch19.addGeometry([
    Part.LineSegment(V(18.5, -151.596859, 0), V(13.5, -144.481553, 0)),
    Part.LineSegment(V(13.5, -144.481553, 0), V(13.5, -151.596859, 0)),
    Part.LineSegment(V(13.5, -151.596859, 0), V(18.5, -151.596859, 0)),
], False)
sketch19.addConstraint([
    Sketcher.Constraint("Coincident", 0, 2, 1, 1),
    Sketcher.Constraint("Coincident", 1, 2, 2, 1),
    Sketcher.Constraint("Coincident", 2, 2, 0, 1),
    Sketcher.Constraint("Vertical", 1),
    Sketcher.Constraint("Horizontal", 2),
    Sketcher.Constraint("DistanceX", 2, 1, 2, 2, Q("5 mm")),
    Sketcher.Constraint("DistanceX", -1, 1, 0, 2, Q("13.5 mm")),
    Sketcher.Constraint("Distance", 0, Q("8.696411 mm")),
    Sketcher.Constraint("DistanceY", 1, 2, -1, 1, Q("151.596859 mm")),
])
sketch19.setExpression("Constraints[5]", "Params.sketch19_width")
pad14 = body14.newObject("PartDesign::Pad", "Pad013")
pad14.Profile = sketch19
pad14.setExpression("Length", "Params.pad14_length")
pad14.Reversed = True
body15 = doc.addObject("PartDesign::Body", "Body014")

sketch20 = body15.newObject("Sketcher::SketchObject", "Sketch019")
sketch20.AttachmentSupport = (doc.getObject("YZ_Plane014"), [""])
sketch20.MapMode = "FlatFace"
sketch20.AttachmentOffset = App.Placement(V(0, 0, 136.823447), App.Rotation())
sketch20.addGeometry([
    Part.LineSegment(V(18.5, -159.096859, 0), V(13.5, -151.981553, 0)),
    Part.LineSegment(V(13.5, -151.981553, 0), V(13.5, -159.096859, 0)),
    Part.LineSegment(V(13.5, -159.096859, 0), V(18.5, -159.096859, 0)),
], False)
sketch20.addConstraint([
    Sketcher.Constraint("Coincident", 0, 2, 1, 1),
    Sketcher.Constraint("Coincident", 1, 2, 2, 1),
    Sketcher.Constraint("Coincident", 2, 2, 0, 1),
    Sketcher.Constraint("Vertical", 1),
    Sketcher.Constraint("Horizontal", 2),
    Sketcher.Constraint("DistanceX", 2, 1, 2, 2, Q("5 mm")),
    Sketcher.Constraint("DistanceX", -1, 1, 0, 2, Q("13.5 mm")),
    Sketcher.Constraint("Distance", 0, Q("8.696411 mm")),
    Sketcher.Constraint("DistanceY", 1, 2, -1, 1, Q("159.096859 mm")),
])
sketch20.setExpression("Constraints[5]", "Params.sketch20_width")
pad15 = body15.newObject("PartDesign::Pad", "Pad014")
pad15.Profile = sketch20
pad15.setExpression("Length", "Params.pad15_length")
pad15.Reversed = True
body16 = doc.addObject("PartDesign::Body", "Body015")

sketch21 = body16.newObject("Sketcher::SketchObject", "Sketch020")
sketch21.AttachmentSupport = (doc.getObject("YZ_Plane015"), [""])
sketch21.MapMode = "FlatFace"
sketch21.AttachmentOffset = App.Placement(V(0, 0, 136.823447), App.Rotation())
sketch21.addGeometry([
    Part.LineSegment(V(18.5, -166.596859, 0), V(13.5, -159.481553, 0)),
    Part.LineSegment(V(13.5, -159.481553, 0), V(13.5, -166.596859, 0)),
    Part.LineSegment(V(13.5, -166.596859, 0), V(18.5, -166.596859, 0)),
], False)
sketch21.addConstraint([
    Sketcher.Constraint("Coincident", 0, 2, 1, 1),
    Sketcher.Constraint("Coincident", 1, 2, 2, 1),
    Sketcher.Constraint("Coincident", 2, 2, 0, 1),
    Sketcher.Constraint("Vertical", 1),
    Sketcher.Constraint("Horizontal", 2),
    Sketcher.Constraint("DistanceX", 2, 1, 2, 2, Q("5 mm")),
    Sketcher.Constraint("DistanceX", -1, 1, 0, 2, Q("13.5 mm")),
    Sketcher.Constraint("Distance", 0, Q("8.696411 mm")),
    Sketcher.Constraint("DistanceY", 1, 2, -1, 1, Q("166.596859 mm")),
])
sketch21.setExpression("Constraints[5]", "Params.sketch21_width")
pad16 = body16.newObject("PartDesign::Pad", "Pad015")
pad16.Profile = sketch21
pad16.setExpression("Length", "Params.pad16_length")
pad16.Reversed = True
body17 = doc.addObject("PartDesign::Body", "Body016")

sketch22 = body17.newObject("Sketcher::SketchObject", "Sketch021")
sketch22.AttachmentSupport = (doc.getObject("YZ_Plane016"), [""])
sketch22.MapMode = "FlatFace"
sketch22.AttachmentOffset = App.Placement(V(0, 0, 136.823447), App.Rotation())
sketch22.addGeometry([
    Part.LineSegment(V(18.5, -174.096859, 0), V(13.5, -166.981553, 0)),
    Part.LineSegment(V(13.5, -166.981553, 0), V(13.5, -174.096859, 0)),
    Part.LineSegment(V(13.5, -174.096859, 0), V(18.5, -174.096859, 0)),
], False)
sketch22.addConstraint([
    Sketcher.Constraint("Coincident", 0, 2, 1, 1),
    Sketcher.Constraint("Coincident", 1, 2, 2, 1),
    Sketcher.Constraint("Coincident", 2, 2, 0, 1),
    Sketcher.Constraint("Vertical", 1),
    Sketcher.Constraint("Horizontal", 2),
    Sketcher.Constraint("DistanceX", 2, 1, 2, 2, Q("5 mm")),
    Sketcher.Constraint("DistanceX", -1, 1, 0, 2, Q("13.5 mm")),
    Sketcher.Constraint("Distance", 0, Q("8.696411 mm")),
    Sketcher.Constraint("DistanceY", 1, 2, -1, 1, Q("174.096859 mm")),
])
sketch22.setExpression("Constraints[5]", "Params.sketch22_width")
pad17 = body17.newObject("PartDesign::Pad", "Pad016")
pad17.Profile = sketch22
pad17.setExpression("Length", "Params.pad17_length")
pad17.Reversed = True
body18 = doc.addObject("PartDesign::Body", "Body017")

sketch23 = body18.newObject("Sketcher::SketchObject", "Sketch022")
sketch23.AttachmentSupport = (doc.getObject("YZ_Plane017"), [""])
sketch23.MapMode = "FlatFace"
sketch23.AttachmentOffset = App.Placement(V(0, 0, 136.823447), App.Rotation())
sketch23.addGeometry([
    Part.LineSegment(V(18.5, -181.596859, 0), V(13.5, -174.481553, 0)),
    Part.LineSegment(V(13.5, -174.481553, 0), V(13.5, -181.596859, 0)),
    Part.LineSegment(V(13.5, -181.596859, 0), V(18.5, -181.596859, 0)),
], False)
sketch23.addConstraint([
    Sketcher.Constraint("Coincident", 0, 2, 1, 1),
    Sketcher.Constraint("Coincident", 1, 2, 2, 1),
    Sketcher.Constraint("Coincident", 2, 2, 0, 1),
    Sketcher.Constraint("Vertical", 1),
    Sketcher.Constraint("Horizontal", 2),
    Sketcher.Constraint("DistanceX", 2, 1, 2, 2, Q("5 mm")),
    Sketcher.Constraint("DistanceX", -1, 1, 0, 2, Q("13.5 mm")),
    Sketcher.Constraint("Distance", 0, Q("8.696411 mm")),
    Sketcher.Constraint("DistanceY", 1, 2, -1, 1, Q("181.596859 mm")),
])
sketch23.setExpression("Constraints[5]", "Params.sketch23_width")
pad18 = body18.newObject("PartDesign::Pad", "Pad017")
pad18.Profile = sketch23
pad18.setExpression("Length", "Params.pad18_length")
pad18.Reversed = True

doc.recompute()
